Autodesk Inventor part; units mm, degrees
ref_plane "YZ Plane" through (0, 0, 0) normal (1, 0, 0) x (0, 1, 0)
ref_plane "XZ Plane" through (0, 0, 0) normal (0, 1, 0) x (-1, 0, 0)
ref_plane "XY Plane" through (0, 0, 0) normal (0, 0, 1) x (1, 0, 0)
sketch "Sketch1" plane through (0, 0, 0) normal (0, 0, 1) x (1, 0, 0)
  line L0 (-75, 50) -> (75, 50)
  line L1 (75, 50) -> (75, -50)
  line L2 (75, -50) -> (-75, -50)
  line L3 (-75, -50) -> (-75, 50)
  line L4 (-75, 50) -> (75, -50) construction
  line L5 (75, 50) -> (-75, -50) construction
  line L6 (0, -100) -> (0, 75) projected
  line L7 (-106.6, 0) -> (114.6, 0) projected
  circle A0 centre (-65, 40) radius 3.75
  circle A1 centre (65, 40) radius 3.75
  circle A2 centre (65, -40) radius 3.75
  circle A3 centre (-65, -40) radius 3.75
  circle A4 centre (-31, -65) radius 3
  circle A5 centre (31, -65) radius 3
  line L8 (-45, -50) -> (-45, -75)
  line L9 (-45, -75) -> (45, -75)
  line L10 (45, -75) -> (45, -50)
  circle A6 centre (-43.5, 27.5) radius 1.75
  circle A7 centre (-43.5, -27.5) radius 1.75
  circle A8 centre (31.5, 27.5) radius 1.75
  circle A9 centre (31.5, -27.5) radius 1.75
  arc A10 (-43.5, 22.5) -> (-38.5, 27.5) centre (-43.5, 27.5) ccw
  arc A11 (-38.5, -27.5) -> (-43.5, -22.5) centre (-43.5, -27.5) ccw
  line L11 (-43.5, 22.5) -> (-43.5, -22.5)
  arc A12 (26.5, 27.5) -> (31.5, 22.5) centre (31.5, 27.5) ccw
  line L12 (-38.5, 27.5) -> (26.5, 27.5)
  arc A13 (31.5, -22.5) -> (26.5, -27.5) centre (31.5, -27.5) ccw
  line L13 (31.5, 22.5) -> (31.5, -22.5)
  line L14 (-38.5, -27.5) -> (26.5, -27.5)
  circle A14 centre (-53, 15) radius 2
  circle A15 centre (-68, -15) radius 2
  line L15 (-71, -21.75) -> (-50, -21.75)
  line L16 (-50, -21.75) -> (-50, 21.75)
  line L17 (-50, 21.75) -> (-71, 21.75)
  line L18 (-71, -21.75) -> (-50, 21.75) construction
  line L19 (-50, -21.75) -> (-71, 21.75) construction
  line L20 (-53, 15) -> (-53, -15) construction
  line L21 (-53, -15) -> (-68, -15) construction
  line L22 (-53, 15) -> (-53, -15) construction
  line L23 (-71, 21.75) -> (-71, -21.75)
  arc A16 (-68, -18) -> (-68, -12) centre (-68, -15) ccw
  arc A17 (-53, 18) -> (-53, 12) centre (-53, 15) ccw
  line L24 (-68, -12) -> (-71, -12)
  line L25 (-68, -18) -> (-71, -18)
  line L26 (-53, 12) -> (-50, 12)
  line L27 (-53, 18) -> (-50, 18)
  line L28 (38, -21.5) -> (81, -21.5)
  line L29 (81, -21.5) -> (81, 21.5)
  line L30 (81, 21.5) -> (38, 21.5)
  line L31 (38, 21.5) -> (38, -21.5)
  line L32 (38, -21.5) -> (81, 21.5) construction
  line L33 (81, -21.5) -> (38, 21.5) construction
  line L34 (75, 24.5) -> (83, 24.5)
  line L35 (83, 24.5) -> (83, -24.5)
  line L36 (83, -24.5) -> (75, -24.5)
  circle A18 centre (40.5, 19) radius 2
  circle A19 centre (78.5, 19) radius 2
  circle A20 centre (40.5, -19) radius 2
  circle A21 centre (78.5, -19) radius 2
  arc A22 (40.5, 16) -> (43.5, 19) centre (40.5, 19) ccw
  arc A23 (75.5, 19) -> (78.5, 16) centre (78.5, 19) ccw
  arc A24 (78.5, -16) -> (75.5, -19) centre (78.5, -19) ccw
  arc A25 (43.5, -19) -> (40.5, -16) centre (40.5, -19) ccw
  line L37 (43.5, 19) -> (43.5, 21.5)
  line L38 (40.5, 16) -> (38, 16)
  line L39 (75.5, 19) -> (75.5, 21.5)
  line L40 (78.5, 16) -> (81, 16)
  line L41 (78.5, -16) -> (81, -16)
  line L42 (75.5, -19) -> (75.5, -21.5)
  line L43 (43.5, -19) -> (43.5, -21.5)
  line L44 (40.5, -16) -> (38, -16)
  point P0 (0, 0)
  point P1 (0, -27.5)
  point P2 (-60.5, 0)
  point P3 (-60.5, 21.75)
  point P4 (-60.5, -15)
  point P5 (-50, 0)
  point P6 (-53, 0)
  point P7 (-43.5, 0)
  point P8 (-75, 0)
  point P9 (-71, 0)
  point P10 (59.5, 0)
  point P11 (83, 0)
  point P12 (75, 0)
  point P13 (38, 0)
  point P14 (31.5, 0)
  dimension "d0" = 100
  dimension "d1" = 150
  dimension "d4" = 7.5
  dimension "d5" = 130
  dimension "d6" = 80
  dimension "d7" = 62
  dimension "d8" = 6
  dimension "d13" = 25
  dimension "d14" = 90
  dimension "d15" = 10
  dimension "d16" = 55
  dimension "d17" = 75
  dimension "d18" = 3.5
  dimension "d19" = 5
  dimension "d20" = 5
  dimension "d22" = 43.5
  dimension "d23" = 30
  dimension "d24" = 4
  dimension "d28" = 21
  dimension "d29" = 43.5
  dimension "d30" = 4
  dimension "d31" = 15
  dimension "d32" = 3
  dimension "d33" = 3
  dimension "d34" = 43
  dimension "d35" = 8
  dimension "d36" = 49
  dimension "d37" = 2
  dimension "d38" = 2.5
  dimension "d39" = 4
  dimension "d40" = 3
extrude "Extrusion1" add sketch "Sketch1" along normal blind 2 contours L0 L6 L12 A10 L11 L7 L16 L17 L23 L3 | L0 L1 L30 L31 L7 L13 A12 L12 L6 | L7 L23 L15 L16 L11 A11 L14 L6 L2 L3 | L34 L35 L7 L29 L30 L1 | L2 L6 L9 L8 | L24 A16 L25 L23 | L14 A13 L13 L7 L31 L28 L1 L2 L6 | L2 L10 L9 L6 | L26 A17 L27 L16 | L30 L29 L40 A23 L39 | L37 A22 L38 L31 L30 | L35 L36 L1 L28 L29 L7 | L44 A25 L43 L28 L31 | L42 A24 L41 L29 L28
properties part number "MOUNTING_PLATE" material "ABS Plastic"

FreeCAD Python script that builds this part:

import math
import FreeCAD as App
import Part
import Sketcher
Q = App.Units.Quantity

doc = App.newDocument("Part")
body = doc.addObject("PartDesign::Body", "Body")

sketch1 = body.newObject("Sketcher::SketchObject", "Sketch")
sketch1.AttachmentSupport = (doc.getObject("XY_Plane"), [""])
sketch1.MapMode = "FlatFace"
sketch1.addGeometry([
    Part.LineSegment(App.Vector(-75, 50, 0), App.Vector(-75, -50, 0)),
    Part.LineSegment(App.Vector(-75, -50, 0), App.Vector(-45, -50, 0)),
    Part.LineSegment(App.Vector(-45, -50, 0), App.Vector(-45, -75, 0)),
    Part.LineSegment(App.Vector(-45, -75, 0), App.Vector(45, -75, 0)),
    Part.LineSegment(App.Vector(45, -75, 0), App.Vector(45, -50, 0)),
    Part.LineSegment(App.Vector(45, -50, 0), App.Vector(75, -50, 0)),
    Part.LineSegment(App.Vector(75, -50, 0), App.Vector(75, -24.5, 0)),
    Part.LineSegment(App.Vector(75, -24.5, 0), App.Vector(83, -24.5, 0)),
    Part.LineSegment(App.Vector(83, -24.5, 0), App.Vector(83, 24.5, 0)),
    Part.LineSegment(App.Vector(83, 24.5, 0), App.Vector(75, 24.5, 0)),
    Part.LineSegment(App.Vector(75, 24.5, 0), App.Vector(75, 50, 0)),
    Part.LineSegment(App.Vector(75, 50, 0), App.Vector(-75, 50, 0)),
    Part.LineSegment(App.Vector(-38.5, 27.5, 0), App.Vector(26.5, 27.5, 0)),
    Part.ArcOfCircle(Part.Circle(App.Vector(31.5, 27.5, 0), App.Vector(0, 0, 1), 5), math.radians(180), math.radians(270)),
    Part.LineSegment(App.Vector(31.5, 22.5, 0), App.Vector(31.5, -22.5, 0)),
    Part.ArcOfCircle(Part.Circle(App.Vector(31.5, -27.5, 0), App.Vector(0, 0, 1), 5), math.radians(90), math.radians(180)),
    Part.LineSegment(App.Vector(26.5, -27.5, 0), App.Vector(-38.5, -27.5, 0)),
    Part.ArcOfCircle(Part.Circle(App.Vector(-43.5, -27.5, 0), App.Vector(0, 0, 1), 5), math.radians(0), math.radians(90)),
    Part.LineSegment(App.Vector(-43.5, -22.5, 0), App.Vector(-43.5, 22.5, 0)),
    Part.ArcOfCircle(Part.Circle(App.Vector(-43.5, 27.5, 0), App.Vector(0, 0, 1), 5), math.radians(-90), math.radians(0)),
    Part.LineSegment(App.Vector(-50, 12, 0), App.Vector(-50, -21.8, 0)),
    Part.LineSegment(App.Vector(-50, -21.8, 0), App.Vector(-71, -21.8, 0)),
    Part.LineSegment(App.Vector(-71, -21.8, 0), App.Vector(-71, -18, 0)),
    Part.LineSegment(App.Vector(-71, -18, 0), App.Vector(-68, -18, 0)),
    Part.ArcOfCircle(Part.Circle(App.Vector(-68, -15, 0), App.Vector(0, 0, 1), 3), math.radians(-90), math.radians(90)),
    Part.LineSegment(App.Vector(-68, -12, 0), App.Vector(-71, -12, 0)),
    Part.LineSegment(App.Vector(-71, -12, 0), App.Vector(-71, 21.8, 0)),
    Part.LineSegment(App.Vector(-71, 21.8, 0), App.Vector(-50, 21.8, 0)),
    Part.LineSegment(App.Vector(-50, 21.8, 0), App.Vector(-50, 18, 0)),
    Part.LineSegment(App.Vector(-50, 18, 0), App.Vector(-53, 18, 0)),
    Part.ArcOfCircle(Part.Circle(App.Vector(-53, 15, 0), App.Vector(0, 0, 1), 3), math.radians(90), math.radians(270)),
    Part.LineSegment(App.Vector(-53, 12, 0), App.Vector(-50, 12, 0)),
    Part.Circle(App.Vector(-43.5, 27.5, 0), App.Vector(0, 0, 1), 1.8),
    Part.Circle(App.Vector(-65, 40, 0), App.Vector(0, 0, 1), 3.8),
    Part.LineSegment(App.Vector(43.5, 21.5, 0), App.Vector(75.5, 21.5, 0)),
    Part.LineSegment(App.Vector(75.5, 21.5, 0), App.Vector(75.5, 19, 0)),
    Part.ArcOfCircle(Part.Circle(App.Vector(78.5, 19, 0), App.Vector(0, 0, 1), 3), math.radians(180), math.radians(270)),
    Part.LineSegment(App.Vector(78.5, 16, 0), App.Vector(81, 16, 0)),
    Part.LineSegment(App.Vector(81, 16, 0), App.Vector(81, -16, 0)),
    Part.LineSegment(App.Vector(81, -16, 0), App.Vector(78.5, -16, 0)),
    Part.ArcOfCircle(Part.Circle(App.Vector(78.5, -19, 0), App.Vector(0, 0, 1), 3), math.radians(90), math.radians(180)),
    Part.LineSegment(App.Vector(75.5, -19, 0), App.Vector(75.5, -21.5, 0)),
    Part.LineSegment(App.Vector(75.5, -21.5, 0), App.Vector(43.5, -21.5, 0)),
    Part.LineSegment(App.Vector(43.5, -21.5, 0), App.Vector(43.5, -19, 0)),
    Part.ArcOfCircle(Part.Circle(App.Vector(40.5, -19, 0), App.Vector(0, 0, 1), 3), math.radians(0), math.radians(90)),
    Part.LineSegment(App.Vector(40.5, -16, 0), App.Vector(38, -16, 0)),
    Part.LineSegment(App.Vector(38, -16, 0), App.Vector(38, 16, 0)),
    Part.LineSegment(App.Vector(38, 16, 0), App.Vector(40.5, 16, 0)),
    Part.ArcOfCircle(Part.Circle(App.Vector(40.5, 19, 0), App.Vector(0, 0, 1), 3), math.radians(-90), math.radians(0)),
    Part.LineSegment(App.Vector(43.5, 19, 0), App.Vector(43.5, 21.5, 0)),
    Part.Circle(App.Vector(65, 40, 0), App.Vector(0, 0, 1), 3.8),
    Part.Circle(App.Vector(31.5, 27.5, 0), App.Vector(0, 0, 1), 1.8),
    Part.Circle(App.Vector(-65, -40, 0), App.Vector(0, 0, 1), 3.8),
    Part.Circle(App.Vector(-43.5, -27.5, 0), App.Vector(0, 0, 1), 1.8),
    Part.Circle(App.Vector(-53, 15, 0), App.Vector(0, 0, 1), 2),
    Part.Circle(App.Vector(40.5, 19, 0), App.Vector(0, 0, 1), 2),
    Part.Circle(App.Vector(65, -40, 0), App.Vector(0, 0, 1), 3.8),
    Part.Circle(App.Vector(31.5, -27.5, 0), App.Vector(0, 0, 1), 1.8),
    Part.Circle(App.Vector(-68, -15, 0), App.Vector(0, 0, 1), 2),
    Part.Circle(App.Vector(-31, -65, 0), App.Vector(0, 0, 1), 3),
    Part.Circle(App.Vector(78.5, 19, 0), App.Vector(0, 0, 1), 2),
    Part.Circle(App.Vector(40.5, -19, 0), App.Vector(0, 0, 1), 2),
    Part.Circle(App.Vector(31, -65, 0), App.Vector(0, 0, 1), 3),
    Part.Circle(App.Vector(78.5, -19, 0), App.Vector(0, 0, 1), 2),
], False)
sketch1.addConstraint([
    Sketcher.Constraint("Coincident", 0, 2, 1, 1),
    Sketcher.Constraint("Coincident", 1, 2, 2, 1),
    Sketcher.Constraint("Coincident", 2, 2, 3, 1),
    Sketcher.Constraint("Coincident", 3, 2, 4, 1),
    Sketcher.Constraint("Coincident", 4, 2, 5, 1),
    Sketcher.Constraint("Coincident", 5, 2, 6, 1),
    Sketcher.Constraint("Coincident", 6, 2, 7, 1),
    Sketcher.Constraint("Coincident", 7, 2, 8, 1),
    Sketcher.Constraint("Coincident", 8, 2, 9, 1),
    Sketcher.Constraint("Coincident", 9, 2, 10, 1),
    Sketcher.Constraint("Coincident", 10, 2, 11, 1),
    Sketcher.Constraint("Coincident", 11, 2, 0, 1),
    Sketcher.Constraint("Coincident", 12, 2, 13, 1),
    Sketcher.Constraint("Coincident", 13, 2, 14, 1),
    Sketcher.Constraint("Coincident", 14, 2, 15, 1),
    Sketcher.Constraint("Coincident", 15, 2, 16, 1),
    Sketcher.Constraint("Coincident", 16, 2, 17, 1),
    Sketcher.Constraint("Coincident", 17, 2, 18, 1),
    Sketcher.Constraint("Coincident", 18, 2, 19, 1),
    Sketcher.Constraint("Coincident", 19, 2, 12, 1),
    Sketcher.Constraint("Coincident", 20, 2, 21, 1),
    Sketcher.Constraint("Coincident", 21, 2, 22, 1),
    Sketcher.Constraint("Coincident", 22, 2, 23, 1),
    Sketcher.Constraint("Tangent", 23, 2, 24, 1),
    Sketcher.Constraint("Tangent", 24, 2, 25, 1),
    Sketcher.Constraint("Coincident", 25, 2, 26, 1),
    Sketcher.Constraint("Coincident", 26, 2, 27, 1),
    Sketcher.Constraint("Coincident", 27, 2, 28, 1),
    Sketcher.Constraint("Coincident", 28, 2, 29, 1),
    Sketcher.Constraint("Tangent", 29, 2, 30, 1),
    Sketcher.Constraint("Tangent", 30, 2, 31, 1),
    Sketcher.Constraint("Coincident", 31, 2, 20, 1),
    Sketcher.Constraint("Coincident", 34, 2, 35, 1),
    Sketcher.Constraint("Tangent", 35, 2, 36, 1),
    Sketcher.Constraint("Tangent", 36, 2, 37, 1),
    Sketcher.Constraint("Coincident", 37, 2, 38, 1),
    Sketcher.Constraint("Coincident", 38, 2, 39, 1),
    Sketcher.Constraint("Tangent", 39, 2, 40, 1),
    Sketcher.Constraint("Tangent", 40, 2, 41, 1),
    Sketcher.Constraint("Coincident", 41, 2, 42, 1),
    Sketcher.Constraint("Coincident", 42, 2, 43, 1),
    Sketcher.Constraint("Tangent", 43, 2, 44, 1),
    Sketcher.Constraint("Tangent", 44, 2, 45, 1),
    Sketcher.Constraint("Coincident", 45, 2, 46, 1),
    Sketcher.Constraint("Coincident", 46, 2, 47, 1),
    Sketcher.Constraint("Tangent", 47, 2, 48, 1),
    Sketcher.Constraint("Tangent", 48, 2, 49, 1),
    Sketcher.Constraint("Coincident", 49, 2, 34, 1),
    Sketcher.Constraint("Vertical", 0),
    Sketcher.Constraint("Horizontal", 1),
    Sketcher.Constraint("Vertical", 2),
    Sketcher.Constraint("Horizontal", 3),
    Sketcher.Constraint("Vertical", 4),
    Sketcher.Constraint("Horizontal", 5),
    Sketcher.Constraint("Vertical", 6),
    Sketcher.Constraint("Horizontal", 7),
    Sketcher.Constraint("Vertical", 8),
    Sketcher.Constraint("Horizontal", 9),
    Sketcher.Constraint("Vertical", 10),
    Sketcher.Constraint("Horizontal", 11),
    Sketcher.Constraint("Horizontal", 12),
    Sketcher.Constraint("Vertical", 14),
    Sketcher.Constraint("Horizontal", 16),
    Sketcher.Constraint("Vertical", 18),
    Sketcher.Constraint("Vertical", 20),
    Sketcher.Constraint("Horizontal", 21),
    Sketcher.Constraint("Vertical", 22),
    Sketcher.Constraint("Horizontal", 23),
    Sketcher.Constraint("Horizontal", 25),
    Sketcher.Constraint("Vertical", 26),
    Sketcher.Constraint("Horizontal", 27),
    Sketcher.Constraint("Vertical", 28),
    Sketcher.Constraint("Horizontal", 29),
    Sketcher.Constraint("Horizontal", 31),
    Sketcher.Constraint("Horizontal", 34),
    Sketcher.Constraint("Vertical", 35),
    Sketcher.Constraint("Horizontal", 37),
    Sketcher.Constraint("Vertical", 38),
    Sketcher.Constraint("Horizontal", 39),
    Sketcher.Constraint("Vertical", 41),
    Sketcher.Constraint("Horizontal", 42),
    Sketcher.Constraint("Vertical", 43),
    Sketcher.Constraint("Horizontal", 45),
    Sketcher.Constraint("Vertical", 46),
    Sketcher.Constraint("Horizontal", 47),
    Sketcher.Constraint("Vertical", 49),
    Sketcher.Constraint("Coincident", 32, 3, 19, 3),
    Sketcher.Constraint("Coincident", 51, 3, 13, 3),
    Sketcher.Constraint("Coincident", 53, 3, 17, 3),
    Sketcher.Constraint("Coincident", 54, 3, 30, 3),
    Sketcher.Constraint("Coincident", 55, 3, 48, 3),
    Sketcher.Constraint("Coincident", 57, 3, 15, 3),
    Sketcher.Constraint("Coincident", 58, 3, 24, 3),
    Sketcher.Constraint("Coincident", 60, 3, 36, 3),
    Sketcher.Constraint("Coincident", 61, 3, 44, 3),
    Sketcher.Constraint("Coincident", 63, 3, 40, 3),
    Sketcher.Constraint("Equal", 13, 15),
    Sketcher.Constraint("Equal", 15, 17),
    Sketcher.Constraint("Equal", 17, 19),
    Sketcher.Constraint("Equal", 24, 30),
    Sketcher.Constraint("Equal", 30, 36),
    Sketcher.Constraint("Equal", 36, 40),
    Sketcher.Constraint("Equal", 40, 44),
    Sketcher.Constraint("Equal", 44, 48),
    Sketcher.Constraint("Equal", 33, 50),
    Sketcher.Constraint("Equal", 32, 51),
    Sketcher.Constraint("Equal", 50, 52),
    Sketcher.Constraint("Equal", 51, 53),
    Sketcher.Constraint("Equal", 54, 55),
    Sketcher.Constraint("Equal", 52, 56),
    Sketcher.Constraint("Equal", 53, 57),
    Sketcher.Constraint("Equal", 55, 58),
    Sketcher.Constraint("Equal", 48, 59),
    Sketcher.Constraint("Equal", 58, 60),
    Sketcher.Constraint("Equal", 60, 61),
    Sketcher.Constraint("Equal", 59, 62),
    Sketcher.Constraint("Equal", 61, 63),
    Sketcher.Constraint("Symmetric", 50, 3, 52, 3, -1, 1),
    Sketcher.Constraint("Symmetric", 33, 3, 56, 3, -1, 1),
    Sketcher.Constraint("Symmetric", 0, 2, 10, 2, -1, 1),
    Sketcher.Constraint("Symmetric", 5, 2, 11, 2, -1, 1),
    Sketcher.Constraint("Symmetric", 33, 3, 50, 3, -2),
    Sketcher.Constraint("Symmetric", 59, 3, 62, 3, -2),
    Sketcher.Constraint("Symmetric", 13, 3, 15, 3, -1),
    Sketcher.Constraint("Symmetric", 17, 3, 19, 3, -1),
    Sketcher.Constraint("Symmetric", 36, 3, 40, 3, -1),
    Sketcher.Constraint("Symmetric", 44, 3, 48, 3, -1),
    Sketcher.Constraint("Symmetric", 21, 2, 26, 2, -1),
    Sketcher.Constraint("Horizontal", 15, 3, 17, 3),
    Sketcher.Constraint("Horizontal", 40, 3, 44, 3),
    Sketcher.Constraint("Horizontal", 51, 3, 12, 2),
    Sketcher.Constraint("Horizontal", 57, 3, 15, 2),
    Sketcher.Constraint("Vertical", 57, 3, 13, 2),
    Sketcher.Constraint("Vertical", 53, 3, 17, 2),
    Sketcher.Constraint("Vertical", 20, 2, 27, 2),
    Sketcher.Constraint("Equal", 1, 5),
    Sketcher.Constraint("Equal", 25, 29),
    Sketcher.Constraint("Equal", 39, 45),
    Sketcher.Constraint("Equal", 6, 10),
    Sketcher.Constraint("Equal", 20, 26),
    Sketcher.Constraint("Equal", 47, 35),
    Sketcher.Constraint("Equal", 42, 38),
    Sketcher.Constraint("Equal", 35, 41),
    Sketcher.Constraint("Diameter", 54, Q("4 mm")),
    Sketcher.Constraint("Diameter", 59, Q("6 mm")),
    Sketcher.Constraint("Radius", 13, Q("5 mm")),
    Sketcher.Constraint("Diameter", 32, Q("3.5 mm")),
    Sketcher.Constraint("Diameter", 33, Q("7.5 mm")),
    Sketcher.Constraint("DistanceX", 1, 1, 1, 2, Q("30 mm")),
    Sketcher.Constraint("DistanceX", 3, 1, 3, 2, Q("90 mm")),
    Sketcher.Constraint("DistanceX", 7, 1, 7, 2, Q("8 mm")),
    Sketcher.Constraint("DistanceX", 21, 2, 21, 1, Q("21 mm")),
    Sketcher.Constraint("DistanceX", 23, 1, 23, 2, Q("3 mm")),
    Sketcher.Constraint("DistanceY", 0, 2, 0, 1, Q("100 mm")),
    Sketcher.Constraint("DistanceY", 2, 2, 2, 1, Q("25 mm")),
    Sketcher.Constraint("DistanceY", 8, 1, 8, 2, Q("49 mm")),
    Sketcher.Constraint("DistanceX", 37, 1, 37, 2, Q("2.5 mm")),
    Sketcher.Constraint("DistanceY", 24, 3, -1, 1, Q("15 mm")),
    Sketcher.Constraint("DistanceX", 17, 3, -1, 1, Q("43.5 mm")),
    Sketcher.Constraint("DistanceX", -1, 1, 42, 2, Q("43.5 mm")),
    Sketcher.Constraint("DistanceX", 12, 1, 12, 2, Q("65 mm")),
    Sketcher.Constraint("DistanceX", 34, 1, 34, 2, Q("32 mm")),
    Sketcher.Constraint("DistanceY", 14, 2, 14, 1, Q("45 mm")),
    Sketcher.Constraint("DistanceX", 24, 3, -1, 1, Q("68 mm")),
    Sketcher.Constraint("DistanceX", 33, 3, -1, 1, Q("65 mm")),
    Sketcher.Constraint("DistanceY", -1, 1, 33, 3, Q("40 mm")),
    Sketcher.Constraint("DistanceX", 59, 3, -1, 1, Q("31 mm")),
    Sketcher.Constraint("DistanceY", 59, 3, -1, 1, Q("65 mm")),
    Sketcher.Constraint("DistanceY", 20, 2, 20, 1, Q("33.75 mm")),
])
pad1 = body.newObject("PartDesign::Pad", "Pad")
pad1.Profile = sketch1
pad1.Length = 2

doc.recompute()
